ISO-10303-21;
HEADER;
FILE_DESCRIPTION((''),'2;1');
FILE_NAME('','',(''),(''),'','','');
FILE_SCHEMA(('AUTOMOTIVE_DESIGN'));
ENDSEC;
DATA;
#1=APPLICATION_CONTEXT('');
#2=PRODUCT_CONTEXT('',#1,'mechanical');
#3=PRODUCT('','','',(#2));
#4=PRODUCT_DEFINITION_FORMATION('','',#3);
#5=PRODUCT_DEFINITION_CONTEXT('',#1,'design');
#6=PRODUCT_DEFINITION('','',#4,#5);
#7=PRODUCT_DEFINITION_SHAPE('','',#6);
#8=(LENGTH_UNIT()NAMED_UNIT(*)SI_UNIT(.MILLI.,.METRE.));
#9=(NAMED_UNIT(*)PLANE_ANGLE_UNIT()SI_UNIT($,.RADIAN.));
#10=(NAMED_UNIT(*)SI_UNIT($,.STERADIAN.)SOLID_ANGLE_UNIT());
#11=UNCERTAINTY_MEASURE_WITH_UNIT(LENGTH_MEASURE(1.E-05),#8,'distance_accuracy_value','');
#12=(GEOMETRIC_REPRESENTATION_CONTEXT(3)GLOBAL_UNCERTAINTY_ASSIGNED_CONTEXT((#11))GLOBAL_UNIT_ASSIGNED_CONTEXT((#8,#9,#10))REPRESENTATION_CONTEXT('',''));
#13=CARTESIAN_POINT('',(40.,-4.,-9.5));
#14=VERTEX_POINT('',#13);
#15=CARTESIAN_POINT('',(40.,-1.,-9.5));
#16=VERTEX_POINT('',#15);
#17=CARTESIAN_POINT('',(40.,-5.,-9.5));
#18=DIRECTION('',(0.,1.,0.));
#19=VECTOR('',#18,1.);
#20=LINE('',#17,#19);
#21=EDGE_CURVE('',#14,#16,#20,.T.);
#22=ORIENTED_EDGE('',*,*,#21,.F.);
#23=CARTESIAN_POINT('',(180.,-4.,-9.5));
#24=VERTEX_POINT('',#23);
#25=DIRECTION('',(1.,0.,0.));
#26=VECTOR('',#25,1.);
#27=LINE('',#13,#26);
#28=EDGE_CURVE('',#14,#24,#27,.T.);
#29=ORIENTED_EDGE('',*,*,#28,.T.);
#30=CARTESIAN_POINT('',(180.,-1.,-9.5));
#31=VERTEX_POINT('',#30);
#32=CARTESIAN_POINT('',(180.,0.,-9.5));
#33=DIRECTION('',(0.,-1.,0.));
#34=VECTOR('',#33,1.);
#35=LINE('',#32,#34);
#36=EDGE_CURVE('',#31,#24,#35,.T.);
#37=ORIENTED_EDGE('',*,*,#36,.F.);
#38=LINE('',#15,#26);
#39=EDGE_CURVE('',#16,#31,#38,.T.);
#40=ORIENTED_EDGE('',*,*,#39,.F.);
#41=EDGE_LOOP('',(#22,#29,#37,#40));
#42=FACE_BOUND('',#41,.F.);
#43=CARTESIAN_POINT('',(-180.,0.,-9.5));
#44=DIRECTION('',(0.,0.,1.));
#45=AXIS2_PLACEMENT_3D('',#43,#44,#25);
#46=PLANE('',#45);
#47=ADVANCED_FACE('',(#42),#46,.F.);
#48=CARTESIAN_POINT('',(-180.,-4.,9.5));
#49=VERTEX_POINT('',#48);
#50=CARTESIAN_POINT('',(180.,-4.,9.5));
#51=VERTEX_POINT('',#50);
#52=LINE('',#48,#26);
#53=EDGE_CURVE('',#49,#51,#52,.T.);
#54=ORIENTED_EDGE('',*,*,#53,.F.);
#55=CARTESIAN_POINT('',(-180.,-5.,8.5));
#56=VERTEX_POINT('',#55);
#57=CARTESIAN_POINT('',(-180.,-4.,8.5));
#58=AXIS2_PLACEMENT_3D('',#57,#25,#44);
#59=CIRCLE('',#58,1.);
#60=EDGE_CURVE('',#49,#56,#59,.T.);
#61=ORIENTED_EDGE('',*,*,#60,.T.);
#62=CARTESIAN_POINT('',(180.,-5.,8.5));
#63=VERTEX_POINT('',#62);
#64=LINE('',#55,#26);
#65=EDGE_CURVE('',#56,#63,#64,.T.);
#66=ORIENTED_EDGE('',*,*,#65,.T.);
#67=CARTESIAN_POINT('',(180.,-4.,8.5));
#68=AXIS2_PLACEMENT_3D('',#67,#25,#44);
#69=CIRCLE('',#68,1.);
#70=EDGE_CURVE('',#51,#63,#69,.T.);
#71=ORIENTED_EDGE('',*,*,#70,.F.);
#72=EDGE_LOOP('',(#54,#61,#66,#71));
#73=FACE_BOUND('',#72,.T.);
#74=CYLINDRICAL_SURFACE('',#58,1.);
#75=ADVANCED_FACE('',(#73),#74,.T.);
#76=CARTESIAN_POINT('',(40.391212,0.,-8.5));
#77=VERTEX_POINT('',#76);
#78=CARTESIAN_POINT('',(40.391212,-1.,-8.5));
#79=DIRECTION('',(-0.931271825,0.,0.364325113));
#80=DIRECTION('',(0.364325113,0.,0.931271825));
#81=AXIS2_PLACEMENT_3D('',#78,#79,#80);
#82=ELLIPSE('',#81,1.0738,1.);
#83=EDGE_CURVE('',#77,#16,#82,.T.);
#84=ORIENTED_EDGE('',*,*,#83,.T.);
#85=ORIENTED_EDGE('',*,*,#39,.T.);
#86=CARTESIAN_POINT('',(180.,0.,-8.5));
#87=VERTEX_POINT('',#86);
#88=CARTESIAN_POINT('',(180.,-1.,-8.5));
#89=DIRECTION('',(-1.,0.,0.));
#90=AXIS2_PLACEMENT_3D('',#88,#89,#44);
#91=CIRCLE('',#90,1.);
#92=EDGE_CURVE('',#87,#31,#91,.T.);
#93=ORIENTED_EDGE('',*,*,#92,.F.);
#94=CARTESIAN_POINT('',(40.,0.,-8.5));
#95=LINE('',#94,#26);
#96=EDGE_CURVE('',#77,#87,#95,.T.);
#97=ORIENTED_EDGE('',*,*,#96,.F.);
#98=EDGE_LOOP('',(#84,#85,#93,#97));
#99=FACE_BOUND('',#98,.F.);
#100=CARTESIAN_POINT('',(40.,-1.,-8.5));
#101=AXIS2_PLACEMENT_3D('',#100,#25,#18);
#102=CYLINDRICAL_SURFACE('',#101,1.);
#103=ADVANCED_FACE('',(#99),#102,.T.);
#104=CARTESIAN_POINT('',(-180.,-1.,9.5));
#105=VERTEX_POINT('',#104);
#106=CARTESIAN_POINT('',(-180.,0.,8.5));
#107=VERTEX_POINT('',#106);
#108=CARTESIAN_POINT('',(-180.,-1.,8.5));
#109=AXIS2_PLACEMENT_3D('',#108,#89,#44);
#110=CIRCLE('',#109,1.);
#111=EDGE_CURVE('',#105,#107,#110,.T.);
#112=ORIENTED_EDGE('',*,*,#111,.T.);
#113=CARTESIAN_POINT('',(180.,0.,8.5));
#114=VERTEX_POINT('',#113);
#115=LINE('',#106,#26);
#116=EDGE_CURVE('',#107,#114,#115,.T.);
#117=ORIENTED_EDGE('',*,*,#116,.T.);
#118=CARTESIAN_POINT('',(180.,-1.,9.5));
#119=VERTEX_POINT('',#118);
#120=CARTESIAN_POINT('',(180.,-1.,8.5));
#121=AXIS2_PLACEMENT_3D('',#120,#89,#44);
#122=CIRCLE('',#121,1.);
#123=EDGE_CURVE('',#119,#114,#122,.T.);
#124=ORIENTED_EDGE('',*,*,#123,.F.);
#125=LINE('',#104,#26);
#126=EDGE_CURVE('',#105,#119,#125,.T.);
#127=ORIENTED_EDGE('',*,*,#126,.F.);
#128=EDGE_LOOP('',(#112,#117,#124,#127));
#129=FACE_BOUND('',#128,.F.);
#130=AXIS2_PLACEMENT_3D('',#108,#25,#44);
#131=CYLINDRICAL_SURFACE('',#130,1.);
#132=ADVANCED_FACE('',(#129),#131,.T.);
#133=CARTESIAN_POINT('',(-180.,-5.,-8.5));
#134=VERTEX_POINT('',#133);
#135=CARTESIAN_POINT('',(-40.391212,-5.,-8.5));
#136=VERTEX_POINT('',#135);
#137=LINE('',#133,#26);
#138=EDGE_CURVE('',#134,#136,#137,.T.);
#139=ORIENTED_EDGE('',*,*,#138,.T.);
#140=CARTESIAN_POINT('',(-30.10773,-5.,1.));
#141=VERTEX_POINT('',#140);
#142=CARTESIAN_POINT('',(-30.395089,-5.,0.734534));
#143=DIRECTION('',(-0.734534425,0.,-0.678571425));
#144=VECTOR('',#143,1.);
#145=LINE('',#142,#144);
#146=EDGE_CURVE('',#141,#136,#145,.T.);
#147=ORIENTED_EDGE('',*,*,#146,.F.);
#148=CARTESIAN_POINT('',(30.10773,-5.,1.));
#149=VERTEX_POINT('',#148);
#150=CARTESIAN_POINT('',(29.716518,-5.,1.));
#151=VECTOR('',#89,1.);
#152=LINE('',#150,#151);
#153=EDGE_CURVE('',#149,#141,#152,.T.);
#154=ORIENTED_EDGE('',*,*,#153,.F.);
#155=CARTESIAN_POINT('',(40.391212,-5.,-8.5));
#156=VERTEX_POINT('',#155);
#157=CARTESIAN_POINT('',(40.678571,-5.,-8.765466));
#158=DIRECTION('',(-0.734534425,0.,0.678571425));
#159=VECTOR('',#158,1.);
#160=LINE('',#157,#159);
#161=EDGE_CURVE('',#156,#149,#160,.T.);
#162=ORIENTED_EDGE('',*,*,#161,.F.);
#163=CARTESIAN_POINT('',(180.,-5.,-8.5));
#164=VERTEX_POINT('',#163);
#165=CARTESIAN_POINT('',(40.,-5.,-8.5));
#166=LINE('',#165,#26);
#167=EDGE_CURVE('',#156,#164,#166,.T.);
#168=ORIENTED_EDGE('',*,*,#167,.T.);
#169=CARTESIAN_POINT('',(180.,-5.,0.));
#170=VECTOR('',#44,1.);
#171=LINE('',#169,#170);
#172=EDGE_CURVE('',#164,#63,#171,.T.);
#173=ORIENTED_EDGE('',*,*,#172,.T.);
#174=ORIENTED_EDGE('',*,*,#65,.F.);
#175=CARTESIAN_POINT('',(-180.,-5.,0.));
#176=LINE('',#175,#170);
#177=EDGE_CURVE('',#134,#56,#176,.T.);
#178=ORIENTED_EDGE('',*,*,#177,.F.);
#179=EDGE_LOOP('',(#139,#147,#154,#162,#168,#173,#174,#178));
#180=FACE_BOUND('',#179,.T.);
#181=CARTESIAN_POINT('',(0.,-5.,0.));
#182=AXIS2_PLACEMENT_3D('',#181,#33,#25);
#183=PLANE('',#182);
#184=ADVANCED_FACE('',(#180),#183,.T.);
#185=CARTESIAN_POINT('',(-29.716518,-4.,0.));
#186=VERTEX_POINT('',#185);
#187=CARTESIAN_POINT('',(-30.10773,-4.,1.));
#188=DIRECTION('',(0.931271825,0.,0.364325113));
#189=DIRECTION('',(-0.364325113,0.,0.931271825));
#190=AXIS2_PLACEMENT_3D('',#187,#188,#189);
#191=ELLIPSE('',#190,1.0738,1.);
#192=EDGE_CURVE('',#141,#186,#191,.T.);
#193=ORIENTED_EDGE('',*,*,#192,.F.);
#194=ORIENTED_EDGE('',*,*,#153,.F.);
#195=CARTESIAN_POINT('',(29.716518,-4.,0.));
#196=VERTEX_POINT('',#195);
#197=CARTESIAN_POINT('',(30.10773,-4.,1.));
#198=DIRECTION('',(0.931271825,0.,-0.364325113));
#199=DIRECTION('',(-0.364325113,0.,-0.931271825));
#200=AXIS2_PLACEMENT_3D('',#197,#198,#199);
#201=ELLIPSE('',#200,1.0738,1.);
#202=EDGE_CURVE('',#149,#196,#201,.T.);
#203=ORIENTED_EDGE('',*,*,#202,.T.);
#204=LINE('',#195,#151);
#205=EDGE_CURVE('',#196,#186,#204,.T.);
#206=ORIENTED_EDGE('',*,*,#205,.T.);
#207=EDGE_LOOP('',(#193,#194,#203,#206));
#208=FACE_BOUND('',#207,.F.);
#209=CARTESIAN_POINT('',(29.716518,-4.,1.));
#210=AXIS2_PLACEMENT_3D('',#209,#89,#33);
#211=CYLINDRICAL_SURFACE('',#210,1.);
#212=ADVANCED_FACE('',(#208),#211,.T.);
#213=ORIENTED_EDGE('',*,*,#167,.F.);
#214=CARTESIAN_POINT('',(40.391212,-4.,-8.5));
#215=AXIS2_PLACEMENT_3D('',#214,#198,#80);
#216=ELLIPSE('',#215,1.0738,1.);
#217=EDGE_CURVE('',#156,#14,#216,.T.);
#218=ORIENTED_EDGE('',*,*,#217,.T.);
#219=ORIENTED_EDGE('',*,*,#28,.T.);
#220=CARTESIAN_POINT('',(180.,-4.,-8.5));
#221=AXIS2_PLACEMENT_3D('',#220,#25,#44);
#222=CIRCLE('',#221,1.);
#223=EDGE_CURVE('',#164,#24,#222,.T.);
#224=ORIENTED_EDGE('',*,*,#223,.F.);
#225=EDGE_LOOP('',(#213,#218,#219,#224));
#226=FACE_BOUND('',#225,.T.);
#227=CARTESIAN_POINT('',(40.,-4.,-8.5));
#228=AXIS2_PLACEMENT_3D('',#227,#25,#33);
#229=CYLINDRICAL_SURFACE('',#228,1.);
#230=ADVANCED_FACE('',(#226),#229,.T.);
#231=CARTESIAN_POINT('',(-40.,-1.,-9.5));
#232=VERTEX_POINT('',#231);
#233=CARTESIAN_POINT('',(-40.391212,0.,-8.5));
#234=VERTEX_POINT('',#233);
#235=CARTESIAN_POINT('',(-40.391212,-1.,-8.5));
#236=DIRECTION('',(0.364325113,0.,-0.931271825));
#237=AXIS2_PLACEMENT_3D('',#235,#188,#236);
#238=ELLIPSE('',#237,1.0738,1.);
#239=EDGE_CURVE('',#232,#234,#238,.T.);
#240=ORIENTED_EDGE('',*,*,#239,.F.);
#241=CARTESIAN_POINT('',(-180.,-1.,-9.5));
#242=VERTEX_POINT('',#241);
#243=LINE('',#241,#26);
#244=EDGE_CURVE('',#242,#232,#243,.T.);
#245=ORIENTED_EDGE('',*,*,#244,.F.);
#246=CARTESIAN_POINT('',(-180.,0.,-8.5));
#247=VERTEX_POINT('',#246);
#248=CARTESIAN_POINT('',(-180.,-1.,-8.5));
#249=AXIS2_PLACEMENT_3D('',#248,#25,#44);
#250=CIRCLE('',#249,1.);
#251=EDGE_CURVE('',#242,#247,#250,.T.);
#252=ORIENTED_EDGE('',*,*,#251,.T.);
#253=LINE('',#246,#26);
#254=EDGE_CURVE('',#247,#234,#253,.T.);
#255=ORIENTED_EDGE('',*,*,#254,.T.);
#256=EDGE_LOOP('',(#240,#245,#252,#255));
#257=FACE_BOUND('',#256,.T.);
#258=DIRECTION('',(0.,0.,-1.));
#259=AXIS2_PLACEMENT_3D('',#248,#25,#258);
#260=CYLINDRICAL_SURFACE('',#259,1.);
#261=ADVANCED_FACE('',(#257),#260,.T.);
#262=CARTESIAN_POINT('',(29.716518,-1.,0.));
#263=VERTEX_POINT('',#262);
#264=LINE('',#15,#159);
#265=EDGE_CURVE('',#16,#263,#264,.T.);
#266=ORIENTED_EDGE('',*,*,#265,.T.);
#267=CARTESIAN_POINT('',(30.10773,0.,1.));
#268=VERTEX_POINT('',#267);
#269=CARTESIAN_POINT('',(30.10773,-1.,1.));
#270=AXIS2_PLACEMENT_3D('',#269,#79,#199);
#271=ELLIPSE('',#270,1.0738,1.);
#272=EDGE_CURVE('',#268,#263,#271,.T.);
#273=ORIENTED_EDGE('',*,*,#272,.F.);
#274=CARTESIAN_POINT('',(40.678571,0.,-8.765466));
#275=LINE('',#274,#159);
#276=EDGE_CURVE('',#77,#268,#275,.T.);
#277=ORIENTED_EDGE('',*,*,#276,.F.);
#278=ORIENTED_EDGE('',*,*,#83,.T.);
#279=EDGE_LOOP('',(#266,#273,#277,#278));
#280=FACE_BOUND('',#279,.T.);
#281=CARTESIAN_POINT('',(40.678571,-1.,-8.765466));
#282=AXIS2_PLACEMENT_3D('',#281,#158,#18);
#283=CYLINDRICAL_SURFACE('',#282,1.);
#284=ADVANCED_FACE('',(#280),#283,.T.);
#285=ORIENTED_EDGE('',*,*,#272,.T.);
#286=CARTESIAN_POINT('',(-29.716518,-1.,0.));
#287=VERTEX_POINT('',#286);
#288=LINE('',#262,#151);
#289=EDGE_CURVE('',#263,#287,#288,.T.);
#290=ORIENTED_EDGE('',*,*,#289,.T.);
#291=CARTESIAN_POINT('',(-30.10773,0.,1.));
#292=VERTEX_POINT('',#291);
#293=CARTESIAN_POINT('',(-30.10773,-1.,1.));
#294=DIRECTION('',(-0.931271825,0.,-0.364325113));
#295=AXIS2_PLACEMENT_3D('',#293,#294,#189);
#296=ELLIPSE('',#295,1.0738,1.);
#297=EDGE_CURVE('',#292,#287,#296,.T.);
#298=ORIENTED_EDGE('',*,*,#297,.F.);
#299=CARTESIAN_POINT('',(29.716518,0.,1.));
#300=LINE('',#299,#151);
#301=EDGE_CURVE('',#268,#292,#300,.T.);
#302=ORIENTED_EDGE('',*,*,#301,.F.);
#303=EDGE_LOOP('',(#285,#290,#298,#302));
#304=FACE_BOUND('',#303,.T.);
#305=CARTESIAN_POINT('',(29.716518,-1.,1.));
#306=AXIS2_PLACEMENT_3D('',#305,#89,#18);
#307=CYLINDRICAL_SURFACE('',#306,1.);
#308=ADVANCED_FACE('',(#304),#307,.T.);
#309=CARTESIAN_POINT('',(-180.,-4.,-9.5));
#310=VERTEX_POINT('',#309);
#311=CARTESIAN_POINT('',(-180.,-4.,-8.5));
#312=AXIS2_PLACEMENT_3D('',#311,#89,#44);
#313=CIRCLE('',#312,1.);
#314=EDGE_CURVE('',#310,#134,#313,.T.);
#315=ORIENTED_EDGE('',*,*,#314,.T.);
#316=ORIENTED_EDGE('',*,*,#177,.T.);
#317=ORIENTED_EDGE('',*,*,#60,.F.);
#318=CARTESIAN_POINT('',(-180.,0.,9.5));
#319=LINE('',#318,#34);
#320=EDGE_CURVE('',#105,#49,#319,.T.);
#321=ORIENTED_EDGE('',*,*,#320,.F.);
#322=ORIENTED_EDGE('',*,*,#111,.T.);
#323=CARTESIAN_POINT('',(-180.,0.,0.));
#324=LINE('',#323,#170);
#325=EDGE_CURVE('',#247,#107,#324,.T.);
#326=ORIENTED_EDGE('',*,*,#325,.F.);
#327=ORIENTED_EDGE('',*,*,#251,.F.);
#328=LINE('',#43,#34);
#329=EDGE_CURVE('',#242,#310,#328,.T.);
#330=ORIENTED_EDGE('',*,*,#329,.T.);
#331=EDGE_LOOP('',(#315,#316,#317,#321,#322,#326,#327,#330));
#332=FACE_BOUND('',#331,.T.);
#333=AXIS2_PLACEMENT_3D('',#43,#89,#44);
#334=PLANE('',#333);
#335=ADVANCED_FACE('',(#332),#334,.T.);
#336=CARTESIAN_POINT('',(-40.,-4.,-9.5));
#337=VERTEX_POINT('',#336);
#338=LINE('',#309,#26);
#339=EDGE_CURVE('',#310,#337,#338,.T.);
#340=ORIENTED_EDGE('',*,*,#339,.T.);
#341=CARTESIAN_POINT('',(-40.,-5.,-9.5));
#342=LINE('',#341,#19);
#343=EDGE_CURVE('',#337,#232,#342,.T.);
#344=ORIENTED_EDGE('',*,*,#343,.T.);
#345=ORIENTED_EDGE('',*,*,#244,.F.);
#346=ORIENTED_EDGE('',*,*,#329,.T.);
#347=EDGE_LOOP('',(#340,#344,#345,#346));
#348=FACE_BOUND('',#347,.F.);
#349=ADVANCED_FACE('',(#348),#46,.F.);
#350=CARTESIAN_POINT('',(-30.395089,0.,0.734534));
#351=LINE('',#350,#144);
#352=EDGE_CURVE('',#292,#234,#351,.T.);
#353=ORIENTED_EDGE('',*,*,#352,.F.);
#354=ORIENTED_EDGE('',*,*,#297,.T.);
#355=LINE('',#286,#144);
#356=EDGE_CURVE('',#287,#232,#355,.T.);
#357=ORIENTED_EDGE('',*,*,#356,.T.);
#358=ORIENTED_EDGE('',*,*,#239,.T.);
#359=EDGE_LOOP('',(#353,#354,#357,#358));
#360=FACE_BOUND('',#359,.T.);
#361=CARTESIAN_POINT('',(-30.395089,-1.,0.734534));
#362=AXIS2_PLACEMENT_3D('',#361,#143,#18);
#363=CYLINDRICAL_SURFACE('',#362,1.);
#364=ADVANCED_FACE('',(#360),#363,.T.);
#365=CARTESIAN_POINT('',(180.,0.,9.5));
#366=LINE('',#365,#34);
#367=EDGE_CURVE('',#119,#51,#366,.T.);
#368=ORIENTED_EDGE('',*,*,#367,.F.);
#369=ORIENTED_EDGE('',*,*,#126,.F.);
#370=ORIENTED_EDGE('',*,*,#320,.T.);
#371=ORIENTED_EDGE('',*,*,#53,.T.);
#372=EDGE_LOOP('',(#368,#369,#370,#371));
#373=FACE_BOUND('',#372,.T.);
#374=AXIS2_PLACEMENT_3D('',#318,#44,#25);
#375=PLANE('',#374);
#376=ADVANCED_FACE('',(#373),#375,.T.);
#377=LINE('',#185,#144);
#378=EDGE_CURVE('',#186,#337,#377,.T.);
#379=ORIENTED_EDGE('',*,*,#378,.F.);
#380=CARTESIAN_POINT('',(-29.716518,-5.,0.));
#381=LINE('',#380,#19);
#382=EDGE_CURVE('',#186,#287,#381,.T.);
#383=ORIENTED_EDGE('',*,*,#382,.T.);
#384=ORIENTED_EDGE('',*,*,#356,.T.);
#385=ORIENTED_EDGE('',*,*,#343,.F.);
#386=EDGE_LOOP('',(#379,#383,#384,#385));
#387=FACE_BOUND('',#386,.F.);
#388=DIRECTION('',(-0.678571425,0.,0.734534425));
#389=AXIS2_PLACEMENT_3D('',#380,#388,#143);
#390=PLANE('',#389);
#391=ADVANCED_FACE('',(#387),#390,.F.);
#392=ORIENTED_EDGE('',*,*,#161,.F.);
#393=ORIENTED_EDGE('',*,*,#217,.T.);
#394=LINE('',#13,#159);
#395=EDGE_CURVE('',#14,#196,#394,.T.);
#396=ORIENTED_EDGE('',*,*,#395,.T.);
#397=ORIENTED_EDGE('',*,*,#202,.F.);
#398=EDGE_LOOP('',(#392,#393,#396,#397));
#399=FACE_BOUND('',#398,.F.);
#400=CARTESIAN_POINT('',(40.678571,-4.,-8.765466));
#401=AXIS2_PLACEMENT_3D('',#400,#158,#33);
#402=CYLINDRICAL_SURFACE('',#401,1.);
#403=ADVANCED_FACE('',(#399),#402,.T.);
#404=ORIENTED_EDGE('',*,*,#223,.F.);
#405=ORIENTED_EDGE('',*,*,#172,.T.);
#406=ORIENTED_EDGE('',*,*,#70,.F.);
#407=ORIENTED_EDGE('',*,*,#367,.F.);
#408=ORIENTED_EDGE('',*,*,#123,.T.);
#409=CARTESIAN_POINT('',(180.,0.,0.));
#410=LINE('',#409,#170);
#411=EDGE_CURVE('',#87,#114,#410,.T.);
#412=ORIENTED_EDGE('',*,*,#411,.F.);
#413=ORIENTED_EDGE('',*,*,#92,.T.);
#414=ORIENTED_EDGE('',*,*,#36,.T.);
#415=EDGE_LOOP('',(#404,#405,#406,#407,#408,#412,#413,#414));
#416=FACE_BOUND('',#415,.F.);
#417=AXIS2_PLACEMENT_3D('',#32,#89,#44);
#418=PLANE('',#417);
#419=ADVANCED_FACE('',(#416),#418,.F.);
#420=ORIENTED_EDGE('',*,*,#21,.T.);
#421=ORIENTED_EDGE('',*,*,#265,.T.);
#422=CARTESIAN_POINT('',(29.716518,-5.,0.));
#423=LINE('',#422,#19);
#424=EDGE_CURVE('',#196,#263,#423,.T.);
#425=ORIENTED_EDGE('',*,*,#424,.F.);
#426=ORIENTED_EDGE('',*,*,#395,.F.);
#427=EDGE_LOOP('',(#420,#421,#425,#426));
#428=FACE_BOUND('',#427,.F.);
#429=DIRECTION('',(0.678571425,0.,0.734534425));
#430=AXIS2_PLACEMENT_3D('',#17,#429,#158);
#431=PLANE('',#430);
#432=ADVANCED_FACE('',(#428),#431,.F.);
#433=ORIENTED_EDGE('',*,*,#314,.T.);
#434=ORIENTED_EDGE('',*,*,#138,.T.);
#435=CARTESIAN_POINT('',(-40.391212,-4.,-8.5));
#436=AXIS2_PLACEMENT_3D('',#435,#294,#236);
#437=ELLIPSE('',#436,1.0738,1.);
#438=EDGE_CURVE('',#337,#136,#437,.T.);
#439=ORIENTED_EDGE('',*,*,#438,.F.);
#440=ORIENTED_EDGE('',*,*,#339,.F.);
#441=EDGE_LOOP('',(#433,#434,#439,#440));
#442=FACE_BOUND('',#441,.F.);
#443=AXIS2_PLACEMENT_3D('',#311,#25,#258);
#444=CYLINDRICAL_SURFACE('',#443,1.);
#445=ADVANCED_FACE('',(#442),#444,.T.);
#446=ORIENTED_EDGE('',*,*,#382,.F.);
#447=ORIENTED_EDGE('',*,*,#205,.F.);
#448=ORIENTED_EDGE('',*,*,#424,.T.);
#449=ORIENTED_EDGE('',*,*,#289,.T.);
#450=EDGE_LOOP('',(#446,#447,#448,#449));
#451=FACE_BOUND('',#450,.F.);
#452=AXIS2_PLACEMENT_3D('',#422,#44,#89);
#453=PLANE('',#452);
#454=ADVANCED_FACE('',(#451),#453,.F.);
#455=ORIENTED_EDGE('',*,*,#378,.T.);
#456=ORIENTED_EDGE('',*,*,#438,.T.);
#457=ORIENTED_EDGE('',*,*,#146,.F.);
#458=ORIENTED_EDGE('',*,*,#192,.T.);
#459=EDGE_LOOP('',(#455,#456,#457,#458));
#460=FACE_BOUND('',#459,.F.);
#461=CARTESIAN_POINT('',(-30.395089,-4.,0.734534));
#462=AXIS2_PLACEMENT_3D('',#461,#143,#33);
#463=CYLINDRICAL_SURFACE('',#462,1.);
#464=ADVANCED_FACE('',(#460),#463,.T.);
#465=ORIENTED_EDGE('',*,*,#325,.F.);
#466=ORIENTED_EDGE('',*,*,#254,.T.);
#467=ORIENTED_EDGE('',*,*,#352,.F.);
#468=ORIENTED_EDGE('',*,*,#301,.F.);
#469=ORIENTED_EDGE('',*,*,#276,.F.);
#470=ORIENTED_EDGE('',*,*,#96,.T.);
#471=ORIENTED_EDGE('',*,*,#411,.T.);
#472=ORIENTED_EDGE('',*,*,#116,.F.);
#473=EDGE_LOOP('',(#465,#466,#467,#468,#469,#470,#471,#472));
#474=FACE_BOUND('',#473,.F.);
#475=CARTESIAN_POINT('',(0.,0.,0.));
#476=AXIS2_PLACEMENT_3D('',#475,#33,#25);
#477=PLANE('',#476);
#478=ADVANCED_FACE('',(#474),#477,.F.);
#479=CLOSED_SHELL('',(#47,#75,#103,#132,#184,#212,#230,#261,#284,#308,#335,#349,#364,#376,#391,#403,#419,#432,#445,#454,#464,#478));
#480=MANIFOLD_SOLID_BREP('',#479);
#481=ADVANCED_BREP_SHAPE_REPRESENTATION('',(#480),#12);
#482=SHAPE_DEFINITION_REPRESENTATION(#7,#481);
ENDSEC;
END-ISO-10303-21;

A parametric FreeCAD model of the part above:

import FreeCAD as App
import Part
import Sketcher
from FreeCAD import Vector
Q = App.Units.Quantity


def edges_at(feature, points):
    """Names of the edges that pass closest to the given points."""
    edges = feature.Shape.Edges
    near = lambda p: min(range(len(edges)), key=lambda i: edges[i].distToShape(Part.Vertex(*p))[0])
    return sorted({f"Edge{near(p) + 1}" for p in points})


def add_polygon(sketch, points):
    """Adds a closed chain of lines whose ends are joined by coincident constraints."""
    first, n = sketch.GeometryCount, len(points)
    for a, b in zip(points, points[1:] + points[:1]):
        sketch.addGeometry(Part.LineSegment(App.Vector(*a, 0), App.Vector(*b, 0)), False)
    for i in range(n):
        sketch.addConstraint(Sketcher.Constraint("Coincident", first + i, 2, first + (i + 1) % n, 1))

doc = App.newDocument("Part")
params = doc.addObject("Spreadsheet::Sheet", "Params")
for row, (alias, value) in enumerate([
    ("sketch1_width", "360 mm"),
    ("sketch1_height", "19 mm"),
    ("pad1_length", "5 mm"),
    ("sketch2_width", "80 mm"),
    ("sketch2_length", "14 mm"),
    ("pocket1_length", "25 mm"),
    ("fillet_radius", "1 mm"),
], start=1):
    params.set(f"A{row}", alias)
    params.set(f"B{row}", "=" + value)
    params.setAlias(f"B{row}", alias)

body = doc.addObject("PartDesign::Body", "Body")

# Sketch on XZ plane
sketch1 = body.newObject("Sketcher::SketchObject", "Sketch")
sketch1.AttachmentSupport = (doc.getObject("XZ_Plane"), [""])
sketch1.MapMode = "FlatFace"
add_polygon(sketch1, [(-180, 9.5), (-180, -9.5), (180, -9.5), (180, 9.5)])  # lines 0-3
sketch1.addConstraint([
    Sketcher.Constraint("Vertical", 0),
    Sketcher.Constraint("Horizontal", 1),
    Sketcher.Constraint("Vertical", 2),
    Sketcher.Constraint("Horizontal", 3),
    Sketcher.Constraint("Symmetric", 0, 2, 2, 2, -1, 1),
    Sketcher.Constraint("DistanceX", 1, 1, 1, 2, Q("360 mm")),
    Sketcher.Constraint("DistanceY", 0, 2, 0, 1, Q("19 mm")),
])
sketch1.setExpression("Constraints[9]", "Params.sketch1_width")
sketch1.setExpression("Constraints[10]", "Params.sketch1_height")
pad1 = body.newObject("PartDesign::Pad", "Pad")
pad1.Profile = sketch1
pad1.setExpression("Length", "Params.pad1_length")

# Sketch on XZ plane
sketch2 = body.newObject("Sketcher::SketchObject", "Sketch001")
sketch2.AttachmentSupport = (doc.getObject("XZ_Plane"), [""])
sketch2.MapMode = "FlatFace"
sketch2.AttachmentOffset = App.Placement(Vector(0, 0, 5), App.Rotation())
add_polygon(sketch2, [(-29.716518, 0), (-40, -9.5), (40, -9.5), (29.716518, 0)])  # lines 0-3
sketch2.addConstraint([
    Sketcher.Constraint("Horizontal", 1),
    Sketcher.Constraint("Horizontal", 3),
    Sketcher.Constraint("Symmetric", 2, 2, 3, 2, -1, 1),
    Sketcher.Constraint("Equal", 0, 2),
    Sketcher.Constraint("DistanceX", 1, 1, 1, 2, Q("80 mm")),
    Sketcher.Constraint("Distance", 0, Q("14 mm")),
    Sketcher.Constraint("DistanceY", 0, 2, -1, 1, Q("9.5 mm")),
])
sketch2.setExpression("Constraints[8]", "Params.sketch2_width")
sketch2.setExpression("Constraints[9]", "Params.sketch2_length")
pocket1 = body.newObject("PartDesign::Pocket", "Pocket")
pocket1.Profile = sketch2
pocket1.setExpression("Length", "Params.pocket1_length")
doc.recompute()

fillet = body.newObject("PartDesign::Fillet", "Fillet")
fillet.Base = (pocket1, edges_at(pocket1, [
    (0, -5, 9.5),
    (0, 0, 9.5),
    (110, -5, -9.5),
    (-110, -5, -9.5),
    (0, -5, 0),
    (34.858, -5, -4.75),
    (-34.858, -5, -4.75),
    (110, 0, -9.5),
    (-110, 0, -9.5),
    (0, 0, 0),
    (-34.858, 0, -4.75),
    (34.858, 0, -4.75),
]))
fillet.setExpression("Radius", "Params.fillet_radius")

doc.recompute()
